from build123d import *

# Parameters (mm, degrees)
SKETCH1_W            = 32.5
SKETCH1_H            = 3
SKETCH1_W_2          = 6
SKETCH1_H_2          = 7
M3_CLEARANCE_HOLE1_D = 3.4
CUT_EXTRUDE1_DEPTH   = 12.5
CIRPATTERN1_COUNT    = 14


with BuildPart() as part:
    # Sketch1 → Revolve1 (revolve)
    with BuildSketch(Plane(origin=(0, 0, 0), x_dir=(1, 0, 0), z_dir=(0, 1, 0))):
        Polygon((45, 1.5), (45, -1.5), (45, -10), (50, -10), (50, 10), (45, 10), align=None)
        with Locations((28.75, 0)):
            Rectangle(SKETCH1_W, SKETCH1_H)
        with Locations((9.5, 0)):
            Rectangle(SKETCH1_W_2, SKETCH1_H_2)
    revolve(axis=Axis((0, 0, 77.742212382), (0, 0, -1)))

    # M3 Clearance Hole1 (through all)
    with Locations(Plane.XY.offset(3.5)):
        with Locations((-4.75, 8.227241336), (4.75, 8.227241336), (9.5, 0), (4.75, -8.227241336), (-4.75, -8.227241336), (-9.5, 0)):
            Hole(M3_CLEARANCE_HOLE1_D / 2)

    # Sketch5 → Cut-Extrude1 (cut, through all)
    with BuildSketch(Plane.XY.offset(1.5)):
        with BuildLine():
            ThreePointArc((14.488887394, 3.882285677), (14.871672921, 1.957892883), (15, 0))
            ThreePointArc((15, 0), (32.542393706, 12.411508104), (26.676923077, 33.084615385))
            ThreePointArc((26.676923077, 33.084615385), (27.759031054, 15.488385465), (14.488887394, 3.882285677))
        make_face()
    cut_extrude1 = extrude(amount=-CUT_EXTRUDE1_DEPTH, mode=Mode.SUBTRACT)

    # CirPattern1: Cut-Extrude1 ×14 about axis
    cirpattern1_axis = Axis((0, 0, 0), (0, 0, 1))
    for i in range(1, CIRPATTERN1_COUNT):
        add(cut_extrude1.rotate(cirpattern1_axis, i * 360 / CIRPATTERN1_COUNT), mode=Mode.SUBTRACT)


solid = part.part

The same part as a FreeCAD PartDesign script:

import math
import FreeCAD as App
import Part
import Sketcher

V = App.Vector

doc = App.newDocument("Part")
body = doc.addObject("PartDesign::Body", "Body")

# Sketch on XZ plane
sketch1 = body.newObject("Sketcher::SketchObject", "Sketch")
sketch1.AttachmentSupport = (doc.getObject("XZ_Plane"), [""])
sketch1.MapMode = "FlatFace"
sketch1.addGeometry(Part.LineSegment(V(45, 10, 0), V(50, 10, 0)), False)
sketch1.addGeometry(Part.LineSegment(V(50, 10, 0), V(50, -10, 0)), False)
sketch1.addGeometry(Part.LineSegment(V(50, -10, 0), V(45, -10, 0)), False)
sketch1.addGeometry(Part.LineSegment(V(45, -10, 0), V(45, -1.5, 0)), False)
sketch1.addGeometry(Part.LineSegment(V(45, -1.5, 0), V(12.5, -1.5, 0)), False)
sketch1.addGeometry(Part.LineSegment(V(12.5, -1.5, 0), V(12.5, -3.5, 0)), False)
sketch1.addGeometry(Part.LineSegment(V(12.5, -3.5, 0), V(6.5, -3.5, 0)), False)
sketch1.addGeometry(Part.LineSegment(V(6.5, -3.5, 0), V(6.5, 3.5, 0)), False)
sketch1.addGeometry(Part.LineSegment(V(6.5, 3.5, 0), V(12.5, 3.5, 0)), False)
sketch1.addGeometry(Part.LineSegment(V(12.5, 3.5, 0), V(12.5, 1.5, 0)), False)
sketch1.addGeometry(Part.LineSegment(V(12.5, 1.5, 0), V(45, 1.5, 0)), False)
sketch1.addGeometry(Part.LineSegment(V(45, 1.5, 0), V(45, 10, 0)), False)
sketch1.addConstraint(Sketcher.Constraint("Coincident", 0, 2, 1, 1))
sketch1.addConstraint(Sketcher.Constraint("Coincident", 1, 2, 2, 1))
sketch1.addConstraint(Sketcher.Constraint("Coincident", 2, 2, 3, 1))
sketch1.addConstraint(Sketcher.Constraint("Coincident", 3, 2, 4, 1))
sketch1.addConstraint(Sketcher.Constraint("Coincident", 4, 2, 5, 1))
sketch1.addConstraint(Sketcher.Constraint("Coincident", 5, 2, 6, 1))
sketch1.addConstraint(Sketcher.Constraint("Coincident", 6, 2, 7, 1))
sketch1.addConstraint(Sketcher.Constraint("Coincident", 7, 2, 8, 1))
sketch1.addConstraint(Sketcher.Constraint("Coincident", 8, 2, 9, 1))
sketch1.addConstraint(Sketcher.Constraint("Coincident", 9, 2, 10, 1))
sketch1.addConstraint(Sketcher.Constraint("Coincident", 10, 2, 11, 1))
sketch1.addConstraint(Sketcher.Constraint("Coincident", 11, 2, 0, 1))
sketch1.addConstraint(Sketcher.Constraint("Horizontal", 0))
sketch1.addConstraint(Sketcher.Constraint("Vertical", 1))
sketch1.addConstraint(Sketcher.Constraint("Horizontal", 2))
sketch1.addConstraint(Sketcher.Constraint("Vertical", 3))
sketch1.addConstraint(Sketcher.Constraint("Horizontal", 4))
sketch1.addConstraint(Sketcher.Constraint("Vertical", 5))
sketch1.addConstraint(Sketcher.Constraint("Horizontal", 6))
sketch1.addConstraint(Sketcher.Constraint("Vertical", 7))
sketch1.addConstraint(Sketcher.Constraint("Horizontal", 8))
sketch1.addConstraint(Sketcher.Constraint("Vertical", 9))
sketch1.addConstraint(Sketcher.Constraint("Horizontal", 10))
sketch1.addConstraint(Sketcher.Constraint("Vertical", 11))
sketch1.addConstraint(Sketcher.Constraint("Symmetric", 5, 2, 8, 2, -1))
sketch1.addConstraint(Sketcher.Constraint("Symmetric", 3, 2, 10, 2, -1))
sketch1.addConstraint(Sketcher.Constraint("Equal", 3, 11))
sketch1.addConstraint(Sketcher.Constraint("DistanceX", 0, 1, 0, 2, 5.0))
sketch1.addConstraint(Sketcher.Constraint("DistanceX", 6, 2, 6, 1, 6.0))
sketch1.addConstraint(Sketcher.Constraint("DistanceY", 1, 2, 1, 1, 20.0))
sketch1.addConstraint(Sketcher.Constraint("DistanceY", 5, 2, 5, 1, 2.0))
sketch1.addConstraint(Sketcher.Constraint("DistanceY", 7, 1, 7, 2, 7.0))
sketch1.addConstraint(Sketcher.Constraint("DistanceX", 4, 2, 4, 1, 32.5))
sketch1.addConstraint(Sketcher.Constraint("DistanceX", -1, 1, 0, 2, 50.0))
revolution = body.newObject("PartDesign::Revolution", "Revolution")
revolution.Profile = sketch1
revolution.ReferenceAxis = (sketch1, ["V_Axis"])
revolution.Angle = 360

# Sketch on XY plane
sketch2 = body.newObject("Sketcher::SketchObject", "Sketch001")
sketch2.AttachmentSupport = (doc.getObject("XY_Plane"), [""])
sketch2.MapMode = "FlatFace"
sketch2.AttachmentOffset = App.Placement(V(0, 0, 3.5), App.Rotation())
sketch2.addGeometry(Part.Circle(V(-4.75, 8.227241, 0), V(0, 0, 1), 1.7), False)
sketch2.addGeometry(Part.Circle(V(4.75, 8.227241, 0), V(0, 0, 1), 1.7), False)
sketch2.addGeometry(Part.Circle(V(9.5, 0, 0), V(0, 0, 1), 1.7), False)
sketch2.addGeometry(Part.Circle(V(4.75, -8.227241, 0), V(0, 0, 1), 1.7), False)
sketch2.addGeometry(Part.Circle(V(-4.75, -8.227241, 0), V(0, 0, 1), 1.7), False)
sketch2.addGeometry(Part.Circle(V(-9.5, 0, 0), V(0, 0, 1), 1.7), False)
sketch2.addConstraint(Sketcher.Constraint("Equal", 0, 1))
sketch2.addConstraint(Sketcher.Constraint("Equal", 1, 2))
sketch2.addConstraint(Sketcher.Constraint("Equal", 2, 3))
sketch2.addConstraint(Sketcher.Constraint("Equal", 3, 4))
sketch2.addConstraint(Sketcher.Constraint("Equal", 4, 5))
sketch2.addConstraint(Sketcher.Constraint("Symmetric", 0, 3, 3, 3, -1, 1))
sketch2.addConstraint(Sketcher.Constraint("Symmetric", 1, 3, 4, 3, -1, 1))
sketch2.addConstraint(Sketcher.Constraint("Symmetric", 2, 3, 5, 3, -1, 1))
sketch2.addConstraint(Sketcher.Constraint("Symmetric", 0, 3, 1, 3, -2))
sketch2.addConstraint(Sketcher.Constraint("PointOnObject", 2, 3, -1))
sketch2.addConstraint(Sketcher.Constraint("Diameter", 0, 3.4))
sketch2.addConstraint(Sketcher.Constraint("DistanceX", 5, 3, 2, 3, 19.0))
sketch2.addConstraint(Sketcher.Constraint("DistanceX", 0, 3, 1, 3, 9.5))
sketch2.addConstraint(Sketcher.Constraint("DistanceY", -1, 1, 0, 3, 8.227241))
doc.recompute()
hole = body.newObject("PartDesign::Hole", "Hole")
hole.Profile = sketch2
hole.ThreadType = "None"
hole.Diameter = 3.4
hole.DepthType = "ThroughAll"

# Sketch on XY plane
sketch3 = body.newObject("Sketcher::SketchObject", "Sketch002")
sketch3.AttachmentSupport = (doc.getObject("XY_Plane"), [""])
sketch3.MapMode = "FlatFace"
sketch3.AttachmentOffset = App.Placement(V(0, 0, 1.5), App.Rotation())
sketch3.addGeometry(Part.ArcOfCircle(Part.Circle(V(0, 0, 0), V(0, 0, 1), 15), math.radians(0), math.radians(15)), False)
sketch3.addGeometry(Part.ArcOfCircle(Part.Circle(V(15, 18.602941, 0), V(0, 0, 1), 18.602941), math.radians(-90), math.radians(51.11993)), False)
sketch3.addGeometry(Part.ArcOfCircle(Part.Circle(V(9.316573, 23.185625, 0), V(0, 0, 1), 19.984288), math.radians(-75), math.radians(29.692084)), False)
sketch3.addConstraint(Sketcher.Constraint("Coincident", 0, 1, 1, 1))
sketch3.addConstraint(Sketcher.Constraint("Coincident", 1, 2, 2, 2))
sketch3.addConstraint(Sketcher.Constraint("Coincident", 2, 1, 0, 2))
sketch3.addConstraint(Sketcher.Constraint("Coincident", 0, 3, -1, 1))
sketch3.addConstraint(Sketcher.Constraint("PointOnObject", 0, 1, -1))
sketch3.addConstraint(Sketcher.Constraint("Vertical", 1, 3, 0, 1))
sketch3.addConstraint(Sketcher.Constraint("Radius", 0, 15.0))
sketch3.addConstraint(Sketcher.Constraint("Radius", 1, 18.602941))
sketch3.addConstraint(Sketcher.Constraint("Radius", 2, 19.984288))
sketch3.addConstraint(Sketcher.Constraint("DistanceX", 2, 3, 1, 2, 17.36035))
sketch3.addConstraint(Sketcher.Constraint("DistanceY", 2, 1, 2, 3, 19.30334))
pocket1 = body.newObject("PartDesign::Pocket", "Pocket")
pocket1.Profile = sketch3
pocket1.Type = "ThroughAll"
doc.recompute()

polarpattern = body.newObject("PartDesign::PolarPattern", "PolarPattern")
polarpattern.Originals = [pocket1]
polarpattern.Axis = (doc.getObject("Z_Axis"), [""])
polarpattern.Angle = 360
polarpattern.Occurrences = 14
body.Tip = polarpattern

doc.recompute()
